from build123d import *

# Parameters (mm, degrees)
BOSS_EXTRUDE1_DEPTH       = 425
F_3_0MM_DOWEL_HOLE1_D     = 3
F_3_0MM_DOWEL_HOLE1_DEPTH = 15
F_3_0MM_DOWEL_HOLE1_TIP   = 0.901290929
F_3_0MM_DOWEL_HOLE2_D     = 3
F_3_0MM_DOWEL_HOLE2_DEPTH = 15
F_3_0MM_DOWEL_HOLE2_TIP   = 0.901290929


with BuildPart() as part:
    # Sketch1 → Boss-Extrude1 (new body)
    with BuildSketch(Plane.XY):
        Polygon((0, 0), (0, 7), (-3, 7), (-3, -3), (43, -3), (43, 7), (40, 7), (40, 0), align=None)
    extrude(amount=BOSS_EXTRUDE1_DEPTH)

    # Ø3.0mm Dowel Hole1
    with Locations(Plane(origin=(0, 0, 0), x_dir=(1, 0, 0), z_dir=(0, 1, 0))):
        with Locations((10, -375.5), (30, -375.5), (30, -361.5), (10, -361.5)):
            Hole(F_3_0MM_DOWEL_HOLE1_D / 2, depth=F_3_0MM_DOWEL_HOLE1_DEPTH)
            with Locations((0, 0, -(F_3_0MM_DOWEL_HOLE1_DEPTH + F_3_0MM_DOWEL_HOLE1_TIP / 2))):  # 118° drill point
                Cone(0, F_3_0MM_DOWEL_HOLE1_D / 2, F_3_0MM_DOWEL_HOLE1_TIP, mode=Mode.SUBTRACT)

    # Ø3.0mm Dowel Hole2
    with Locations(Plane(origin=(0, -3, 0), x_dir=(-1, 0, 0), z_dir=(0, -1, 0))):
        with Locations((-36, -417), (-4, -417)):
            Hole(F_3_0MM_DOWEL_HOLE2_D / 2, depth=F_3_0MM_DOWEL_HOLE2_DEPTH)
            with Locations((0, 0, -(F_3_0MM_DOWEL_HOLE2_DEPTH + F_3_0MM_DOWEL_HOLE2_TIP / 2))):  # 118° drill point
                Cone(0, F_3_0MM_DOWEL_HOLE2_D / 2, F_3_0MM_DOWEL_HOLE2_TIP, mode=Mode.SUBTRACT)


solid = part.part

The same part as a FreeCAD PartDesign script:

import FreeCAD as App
import Part
import Sketcher
from FreeCAD import Vector

doc = App.newDocument("Part")
body = doc.addObject("PartDesign::Body", "Body")

# Sketch on XY plane
sketch1 = body.newObject("Sketcher::SketchObject", "Sketch")
sketch1.AttachmentSupport = (doc.getObject("XY_Plane"), [""])
sketch1.MapMode = "FlatFace"
sketch1.addGeometry(Part.LineSegment(Vector(0, 0, 0), Vector(0, 7, 0)), False)
sketch1.addGeometry(Part.LineSegment(Vector(0, 7, 0), Vector(-3, 7, 0)), False)
sketch1.addGeometry(Part.LineSegment(Vector(-3, 7, 0), Vector(-3, -3, 0)), False)
sketch1.addGeometry(Part.LineSegment(Vector(-3, -3, 0), Vector(43, -3, 0)), False)
sketch1.addGeometry(Part.LineSegment(Vector(43, -3, 0), Vector(43, 7, 0)), False)
sketch1.addGeometry(Part.LineSegment(Vector(43, 7, 0), Vector(40, 7, 0)), False)
sketch1.addGeometry(Part.LineSegment(Vector(40, 7, 0), Vector(40, 0, 0)), False)
sketch1.addGeometry(Part.LineSegment(Vector(40, 0, 0), Vector(0, 0, 0)), False)
sketch1.addConstraint(Sketcher.Constraint("Coincident", 0, 2, 1, 1))
sketch1.addConstraint(Sketcher.Constraint("Coincident", 1, 2, 2, 1))
sketch1.addConstraint(Sketcher.Constraint("Coincident", 2, 2, 3, 1))
sketch1.addConstraint(Sketcher.Constraint("Coincident", 3, 2, 4, 1))
sketch1.addConstraint(Sketcher.Constraint("Coincident", 4, 2, 5, 1))
sketch1.addConstraint(Sketcher.Constraint("Coincident", 5, 2, 6, 1))
sketch1.addConstraint(Sketcher.Constraint("Coincident", 6, 2, 7, 1))
sketch1.addConstraint(Sketcher.Constraint("Coincident", 7, 2, 0, 1))
sketch1.addConstraint(Sketcher.Constraint("Vertical", 0))
sketch1.addConstraint(Sketcher.Constraint("Horizontal", 1))
sketch1.addConstraint(Sketcher.Constraint("Vertical", 2))
sketch1.addConstraint(Sketcher.Constraint("Horizontal", 3))
sketch1.addConstraint(Sketcher.Constraint("Vertical", 4))
sketch1.addConstraint(Sketcher.Constraint("Horizontal", 5))
sketch1.addConstraint(Sketcher.Constraint("Vertical", 6))
sketch1.addConstraint(Sketcher.Constraint("Horizontal", 7))
sketch1.addConstraint(Sketcher.Constraint("Coincident", 7, 2, -1, 1))
sketch1.addConstraint(Sketcher.Constraint("Horizontal", 1, 2, 4, 2))
sketch1.addConstraint(Sketcher.Constraint("Equal", 1, 5))
sketch1.addConstraint(Sketcher.Constraint("DistanceX", 1, 2, 1, 1, 3.0))
sketch1.addConstraint(Sketcher.Constraint("DistanceX", 3, 1, 3, 2, 46.0))
sketch1.addConstraint(Sketcher.Constraint("DistanceY", 0, 1, 0, 2, 7.0))
sketch1.addConstraint(Sketcher.Constraint("DistanceY", 2, 2, 2, 1, 10.0))
pad1 = body.newObject("PartDesign::Pad", "Pad")
pad1.Profile = sketch1
pad1.Length = 425

# Sketch on XZ plane
sketch2 = body.newObject("Sketcher::SketchObject", "Sketch001")
sketch2.AttachmentSupport = (doc.getObject("XZ_Plane"), [""])
sketch2.MapMode = "FlatFace"
sketch2.addGeometry(Part.Circle(Vector(10, 375.5, 0), Vector(0, 0, 1), 1.5), False)
sketch2.addGeometry(Part.Circle(Vector(30, 375.5, 0), Vector(0, 0, 1), 1.5), False)
sketch2.addGeometry(Part.Circle(Vector(30, 361.5, 0), Vector(0, 0, 1), 1.5), False)
sketch2.addGeometry(Part.Circle(Vector(10, 361.5, 0), Vector(0, 0, 1), 1.5), False)
sketch2.addConstraint(Sketcher.Constraint("Equal", 0, 1))
sketch2.addConstraint(Sketcher.Constraint("Equal", 1, 2))
sketch2.addConstraint(Sketcher.Constraint("Equal", 2, 3))
sketch2.addConstraint(Sketcher.Constraint("Horizontal", 0, 3, 1, 3))
sketch2.addConstraint(Sketcher.Constraint("Horizontal", 2, 3, 3, 3))
sketch2.addConstraint(Sketcher.Constraint("Vertical", 1, 3, 2, 3))
sketch2.addConstraint(Sketcher.Constraint("Vertical", 0, 3, 3, 3))
sketch2.addConstraint(Sketcher.Constraint("Diameter", 0, 3.0))
sketch2.addConstraint(Sketcher.Constraint("DistanceX", -1, 1, 0, 3, 10.0))
sketch2.addConstraint(Sketcher.Constraint("DistanceX", -1, 1, 1, 3, 30.0))
sketch2.addConstraint(Sketcher.Constraint("DistanceY", 2, 3, 1, 3, 14.0))
sketch2.addConstraint(Sketcher.Constraint("DistanceY", -1, 1, 0, 3, 375.5))
doc.recompute()
hole = body.newObject("PartDesign::Hole", "Hole")
hole.Profile = sketch2
hole.ThreadType = "None"
hole.Diameter = 3
hole.DepthType = "Dimension"
hole.Depth = 15
hole.DrillPoint = "Angled"
hole.DrillPointAngle = 118
hole.Reversed = True

# Sketch on XZ plane
sketch3 = body.newObject("Sketcher::SketchObject", "Sketch002")
sketch3.AttachmentSupport = (doc.getObject("XZ_Plane"), [""])
sketch3.MapMode = "FlatFace"
sketch3.AttachmentOffset = App.Placement(Vector(0, 0, 3), App.Rotation())
sketch3.addGeometry(Part.Circle(Vector(36, 417, 0), Vector(0, 0, 1), 1.5), False)
sketch3.addGeometry(Part.Circle(Vector(4, 417, 0), Vector(0, 0, 1), 1.5), False)
sketch3.addConstraint(Sketcher.Constraint("Equal", 0, 1))
sketch3.addConstraint(Sketcher.Constraint("Horizontal", 0, 3, 1, 3))
sketch3.addConstraint(Sketcher.Constraint("Diameter", 0, 3.0))
sketch3.addConstraint(Sketcher.Constraint("DistanceX", -1, 1, 0, 3, 36.0))
sketch3.addConstraint(Sketcher.Constraint("DistanceY", -1, 1, 0, 3, 417.0))
sketch3.addConstraint(Sketcher.Constraint("DistanceX", -1, 1, 1, 3, 4.0))
doc.recompute()
hole2 = body.newObject("PartDesign::Hole", "Hole001")
hole2.Profile = sketch3
hole2.ThreadType = "None"
hole2.Diameter = 3
hole2.DepthType = "Dimension"
hole2.Depth = 15
hole2.DrillPoint = "Angled"
hole2.DrillPointAngle = 118

doc.recompute()
